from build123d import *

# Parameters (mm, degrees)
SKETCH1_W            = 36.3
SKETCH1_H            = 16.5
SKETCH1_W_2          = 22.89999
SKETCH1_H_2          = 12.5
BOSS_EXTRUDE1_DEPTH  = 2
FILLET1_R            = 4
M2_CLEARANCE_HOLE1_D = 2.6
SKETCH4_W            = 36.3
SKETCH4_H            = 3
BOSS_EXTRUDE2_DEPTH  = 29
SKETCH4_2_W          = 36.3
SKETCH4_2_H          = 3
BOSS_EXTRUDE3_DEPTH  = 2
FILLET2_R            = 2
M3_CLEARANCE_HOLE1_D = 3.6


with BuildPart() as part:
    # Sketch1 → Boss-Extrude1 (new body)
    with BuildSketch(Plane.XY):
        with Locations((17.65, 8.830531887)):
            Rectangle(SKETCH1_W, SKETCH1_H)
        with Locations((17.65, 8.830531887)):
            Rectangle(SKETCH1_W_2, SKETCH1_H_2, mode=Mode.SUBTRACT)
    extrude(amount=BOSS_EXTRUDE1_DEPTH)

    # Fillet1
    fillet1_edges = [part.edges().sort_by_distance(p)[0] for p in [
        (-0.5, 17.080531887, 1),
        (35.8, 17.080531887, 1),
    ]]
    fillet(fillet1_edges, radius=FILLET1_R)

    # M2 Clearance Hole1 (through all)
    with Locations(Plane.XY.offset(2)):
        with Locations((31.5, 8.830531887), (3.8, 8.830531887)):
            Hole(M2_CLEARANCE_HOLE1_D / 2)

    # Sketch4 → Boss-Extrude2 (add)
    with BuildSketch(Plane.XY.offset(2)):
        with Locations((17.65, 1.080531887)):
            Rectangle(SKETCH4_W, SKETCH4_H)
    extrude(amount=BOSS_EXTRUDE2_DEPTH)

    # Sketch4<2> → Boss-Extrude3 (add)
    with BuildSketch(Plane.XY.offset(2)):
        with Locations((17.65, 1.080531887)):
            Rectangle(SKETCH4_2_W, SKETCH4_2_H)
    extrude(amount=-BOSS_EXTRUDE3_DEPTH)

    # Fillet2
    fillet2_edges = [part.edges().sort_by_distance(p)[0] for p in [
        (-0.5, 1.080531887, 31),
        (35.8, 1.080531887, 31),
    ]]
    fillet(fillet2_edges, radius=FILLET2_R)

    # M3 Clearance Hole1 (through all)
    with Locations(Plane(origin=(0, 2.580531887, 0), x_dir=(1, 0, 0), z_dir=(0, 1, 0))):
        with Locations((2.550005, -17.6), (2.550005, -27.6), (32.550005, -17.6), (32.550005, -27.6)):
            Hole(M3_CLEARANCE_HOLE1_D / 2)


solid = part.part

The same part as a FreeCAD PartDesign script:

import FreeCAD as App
import Part
import Sketcher


def edges_at(feature, points):
    """Names of the edges that pass closest to the given points."""
    edges = feature.Shape.Edges
    near = lambda p: min(range(len(edges)), key=lambda i: edges[i].distToShape(Part.Vertex(*p))[0])
    return sorted({f"Edge{near(p) + 1}" for p in points})

doc = App.newDocument("Part")
body = doc.addObject("PartDesign::Body", "Body")

# Sketch on XY plane
sketch1 = body.newObject("Sketcher::SketchObject", "Sketch")
sketch1.AttachmentSupport = (doc.getObject("XY_Plane"), [""])
sketch1.MapMode = "FlatFace"
sketch1.addGeometry(Part.LineSegment(App.Vector(0, 17, 0), App.Vector(0, 1, 0)), False)
sketch1.addGeometry(Part.LineSegment(App.Vector(0, 1, 0), App.Vector(36, 1, 0)), False)
sketch1.addGeometry(Part.LineSegment(App.Vector(36, 1, 0), App.Vector(36, 17, 0)), False)
sketch1.addGeometry(Part.LineSegment(App.Vector(36, 17, 0), App.Vector(0, 17, 0)), False)
sketch1.addGeometry(Part.LineSegment(App.Vector(29, 3, 0), App.Vector(6, 3, 0)), False)
sketch1.addGeometry(Part.LineSegment(App.Vector(6, 3, 0), App.Vector(6, 15, 0)), False)
sketch1.addGeometry(Part.LineSegment(App.Vector(6, 15, 0), App.Vector(29, 15, 0)), False)
sketch1.addGeometry(Part.LineSegment(App.Vector(29, 15, 0), App.Vector(29, 3, 0)), False)
sketch1.addConstraint(Sketcher.Constraint("Coincident", 0, 2, 1, 1))
sketch1.addConstraint(Sketcher.Constraint("Coincident", 1, 2, 2, 1))
sketch1.addConstraint(Sketcher.Constraint("Coincident", 2, 2, 3, 1))
sketch1.addConstraint(Sketcher.Constraint("Coincident", 3, 2, 0, 1))
sketch1.addConstraint(Sketcher.Constraint("Coincident", 4, 2, 5, 1))
sketch1.addConstraint(Sketcher.Constraint("Coincident", 5, 2, 6, 1))
sketch1.addConstraint(Sketcher.Constraint("Coincident", 6, 2, 7, 1))
sketch1.addConstraint(Sketcher.Constraint("Coincident", 7, 2, 4, 1))
sketch1.addConstraint(Sketcher.Constraint("Vertical", 0))
sketch1.addConstraint(Sketcher.Constraint("Horizontal", 1))
sketch1.addConstraint(Sketcher.Constraint("Vertical", 2))
sketch1.addConstraint(Sketcher.Constraint("Horizontal", 3))
sketch1.addConstraint(Sketcher.Constraint("Horizontal", 4))
sketch1.addConstraint(Sketcher.Constraint("Vertical", 5))
sketch1.addConstraint(Sketcher.Constraint("Horizontal", 6))
sketch1.addConstraint(Sketcher.Constraint("Vertical", 7))
sketch1.addConstraint(Sketcher.Constraint("DistanceX", 1, 1, 1, 2, 36.3))
sketch1.addConstraint(Sketcher.Constraint("DistanceY", 0, 2, 0, 1, 16.5))
sketch1.addConstraint(Sketcher.Constraint("DistanceY", 5, 1, 5, 2, 12.5))
sketch1.addConstraint(Sketcher.Constraint("DistanceY", 0, 2, 4, 2, 2.0))
sketch1.addConstraint(Sketcher.Constraint("DistanceX", 0, 2, -1, 1, 0.5))
sketch1.addConstraint(Sketcher.Constraint("DistanceX", 4, 2, 4, 1, 22.89999))
sketch1.addConstraint(Sketcher.Constraint("DistanceY", -1, 1, 0, 2, 0.580532))
sketch1.addConstraint(Sketcher.Constraint("DistanceX", -1, 1, 4, 2, 6.200005))
pad1 = body.newObject("PartDesign::Pad", "Pad")
pad1.Profile = sketch1
pad1.Length = 2
doc.recompute()

fillet = body.newObject("PartDesign::Fillet", "Fillet")
fillet.Base = (pad1, edges_at(pad1, [(-0.5, 17.081, 1), (35.8, 17.081, 1)]))
fillet.Radius = 4

# Sketch on XY plane
sketch2 = body.newObject("Sketcher::SketchObject", "Sketch001")
sketch2.AttachmentSupport = (doc.getObject("XY_Plane"), [""])
sketch2.MapMode = "FlatFace"
sketch2.AttachmentOffset = App.Placement(App.Vector(0, 0, 2), App.Rotation())
sketch2.addGeometry(Part.Circle(App.Vector(31.5, 8.8, 0), App.Vector(0, 0, 1), 1.3), False)
sketch2.addGeometry(Part.Circle(App.Vector(3.8, 8.8, 0), App.Vector(0, 0, 1), 1.3), False)
sketch2.addConstraint(Sketcher.Constraint("Equal", 0, 1))
sketch2.addConstraint(Sketcher.Constraint("Horizontal", 0, 3, 1, 3))
sketch2.addConstraint(Sketcher.Constraint("Diameter", 0, 2.6))
sketch2.addConstraint(Sketcher.Constraint("DistanceX", -1, 1, 0, 3, 31.5))
sketch2.addConstraint(Sketcher.Constraint("DistanceX", -1, 1, 1, 3, 3.8))
sketch2.addConstraint(Sketcher.Constraint("DistanceY", -1, 1, 0, 3, 8.830532))
doc.recompute()
hole = body.newObject("PartDesign::Hole", "Hole")
hole.Profile = sketch2
hole.ThreadType = "None"
hole.Diameter = 2.6
hole.DepthType = "ThroughAll"

# Sketch on XY plane
sketch3 = body.newObject("Sketcher::SketchObject", "Sketch002")
sketch3.AttachmentSupport = (doc.getObject("XY_Plane"), [""])
sketch3.MapMode = "FlatFace"
sketch3.AttachmentOffset = App.Placement(App.Vector(0, 0, 2), App.Rotation())
sketch3.addGeometry(Part.LineSegment(App.Vector(-0.5, 2.6, 0), App.Vector(-0.5, -0.4, 0)), False)
sketch3.addGeometry(Part.LineSegment(App.Vector(-0.5, -0.4, 0), App.Vector(35.8, -0.4, 0)), False)
sketch3.addGeometry(Part.LineSegment(App.Vector(35.8, -0.4, 0), App.Vector(35.8, 2.6, 0)), False)
sketch3.addGeometry(Part.LineSegment(App.Vector(35.8, 2.6, 0), App.Vector(-0.5, 2.6, 0)), False)
sketch3.addConstraint(Sketcher.Constraint("Coincident", 0, 2, 1, 1))
sketch3.addConstraint(Sketcher.Constraint("Coincident", 1, 2, 2, 1))
sketch3.addConstraint(Sketcher.Constraint("Coincident", 2, 2, 3, 1))
sketch3.addConstraint(Sketcher.Constraint("Coincident", 3, 2, 0, 1))
sketch3.addConstraint(Sketcher.Constraint("Vertical", 0))
sketch3.addConstraint(Sketcher.Constraint("Horizontal", 1))
sketch3.addConstraint(Sketcher.Constraint("Vertical", 2))
sketch3.addConstraint(Sketcher.Constraint("Horizontal", 3))
sketch3.addConstraint(Sketcher.Constraint("DistanceY", 0, 2, 0, 1, 3.0))
sketch3.addConstraint(Sketcher.Constraint("DistanceX", 1, 1, 1, 2, 36.3))
sketch3.addConstraint(Sketcher.Constraint("DistanceX", 0, 2, -1, 1, 0.5))
sketch3.addConstraint(Sketcher.Constraint("DistanceY", 0, 2, -1, 1, 0.419468))
pad2 = body.newObject("PartDesign::Pad", "Pad001")
pad2.Profile = sketch3
pad2.Length = 29

# Sketch on XY plane
sketch4 = body.newObject("Sketcher::SketchObject", "Sketch003")
sketch4.AttachmentSupport = (doc.getObject("XY_Plane"), [""])
sketch4.MapMode = "FlatFace"
sketch4.AttachmentOffset = App.Placement(App.Vector(0, 0, 2), App.Rotation())
sketch4.addGeometry(Part.LineSegment(App.Vector(-0.5, 2.6, 0), App.Vector(-0.5, -0.4, 0)), False)
sketch4.addGeometry(Part.LineSegment(App.Vector(-0.5, -0.4, 0), App.Vector(35.8, -0.4, 0)), False)
sketch4.addGeometry(Part.LineSegment(App.Vector(35.8, -0.4, 0), App.Vector(35.8, 2.6, 0)), False)
sketch4.addGeometry(Part.LineSegment(App.Vector(35.8, 2.6, 0), App.Vector(-0.5, 2.6, 0)), False)
sketch4.addConstraint(Sketcher.Constraint("Coincident", 0, 2, 1, 1))
sketch4.addConstraint(Sketcher.Constraint("Coincident", 1, 2, 2, 1))
sketch4.addConstraint(Sketcher.Constraint("Coincident", 2, 2, 3, 1))
sketch4.addConstraint(Sketcher.Constraint("Coincident", 3, 2, 0, 1))
sketch4.addConstraint(Sketcher.Constraint("Vertical", 0))
sketch4.addConstraint(Sketcher.Constraint("Horizontal", 1))
sketch4.addConstraint(Sketcher.Constraint("Vertical", 2))
sketch4.addConstraint(Sketcher.Constraint("Horizontal", 3))
sketch4.addConstraint(Sketcher.Constraint("DistanceY", 0, 2, 0, 1, 3.0))
sketch4.addConstraint(Sketcher.Constraint("DistanceX", 1, 1, 1, 2, 36.3))
sketch4.addConstraint(Sketcher.Constraint("DistanceX", 0, 2, -1, 1, 0.5))
sketch4.addConstraint(Sketcher.Constraint("DistanceY", 0, 2, -1, 1, 0.419468))
pad3 = body.newObject("PartDesign::Pad", "Pad002")
pad3.Profile = sketch4
pad3.Length = 2
pad3.Reversed = True
doc.recompute()

fillet2 = body.newObject("PartDesign::Fillet", "Fillet001")
fillet2.Base = (pad3, edges_at(pad3, [(-0.5, 1.081, 31), (35.8, 1.081, 31)]))
fillet2.Radius = 2

# Sketch on XZ plane
sketch5 = body.newObject("Sketcher::SketchObject", "Sketch004")
sketch5.AttachmentSupport = (doc.getObject("XZ_Plane"), [""])
sketch5.MapMode = "FlatFace"
sketch5.AttachmentOffset = App.Placement(App.Vector(0, 0, -2.580532), App.Rotation())
sketch5.addGeometry(Part.Circle(App.Vector(2.6, 17.6, 0), App.Vector(0, 0, 1), 1.8), False)
sketch5.addGeometry(Part.Circle(App.Vector(2.6, 27.6, 0), App.Vector(0, 0, 1), 1.8), False)
sketch5.addGeometry(Part.Circle(App.Vector(32.6, 17.6, 0), App.Vector(0, 0, 1), 1.8), False)
sketch5.addGeometry(Part.Circle(App.Vector(32.6, 27.6, 0), App.Vector(0, 0, 1), 1.8), False)
sketch5.addConstraint(Sketcher.Constraint("Equal", 0, 1))
sketch5.addConstraint(Sketcher.Constraint("Equal", 1, 2))
sketch5.addConstraint(Sketcher.Constraint("Equal", 2, 3))
sketch5.addConstraint(Sketcher.Constraint("Horizontal", 0, 3, 2, 3))
sketch5.addConstraint(Sketcher.Constraint("Horizontal", 1, 3, 3, 3))
sketch5.addConstraint(Sketcher.Constraint("Vertical", 0, 3, 1, 3))
sketch5.addConstraint(Sketcher.Constraint("Vertical", 2, 3, 3, 3))
sketch5.addConstraint(Sketcher.Constraint("Diameter", 0, 3.6))
sketch5.addConstraint(Sketcher.Constraint("DistanceY", 0, 3, 1, 3, 10.0))
sketch5.addConstraint(Sketcher.Constraint("DistanceX", 0, 3, 2, 3, 30.0))
sketch5.addConstraint(Sketcher.Constraint("DistanceY", -1, 1, 0, 3, 17.6))
sketch5.addConstraint(Sketcher.Constraint("DistanceX", -1, 1, 0, 3, 2.550005))
doc.recompute()
hole2 = body.newObject("PartDesign::Hole", "Hole001")
hole2.Profile = sketch5
hole2.ThreadType = "None"
hole2.Diameter = 3.6
hole2.DepthType = "ThroughAll"
hole2.Reversed = True

doc.recompute()
